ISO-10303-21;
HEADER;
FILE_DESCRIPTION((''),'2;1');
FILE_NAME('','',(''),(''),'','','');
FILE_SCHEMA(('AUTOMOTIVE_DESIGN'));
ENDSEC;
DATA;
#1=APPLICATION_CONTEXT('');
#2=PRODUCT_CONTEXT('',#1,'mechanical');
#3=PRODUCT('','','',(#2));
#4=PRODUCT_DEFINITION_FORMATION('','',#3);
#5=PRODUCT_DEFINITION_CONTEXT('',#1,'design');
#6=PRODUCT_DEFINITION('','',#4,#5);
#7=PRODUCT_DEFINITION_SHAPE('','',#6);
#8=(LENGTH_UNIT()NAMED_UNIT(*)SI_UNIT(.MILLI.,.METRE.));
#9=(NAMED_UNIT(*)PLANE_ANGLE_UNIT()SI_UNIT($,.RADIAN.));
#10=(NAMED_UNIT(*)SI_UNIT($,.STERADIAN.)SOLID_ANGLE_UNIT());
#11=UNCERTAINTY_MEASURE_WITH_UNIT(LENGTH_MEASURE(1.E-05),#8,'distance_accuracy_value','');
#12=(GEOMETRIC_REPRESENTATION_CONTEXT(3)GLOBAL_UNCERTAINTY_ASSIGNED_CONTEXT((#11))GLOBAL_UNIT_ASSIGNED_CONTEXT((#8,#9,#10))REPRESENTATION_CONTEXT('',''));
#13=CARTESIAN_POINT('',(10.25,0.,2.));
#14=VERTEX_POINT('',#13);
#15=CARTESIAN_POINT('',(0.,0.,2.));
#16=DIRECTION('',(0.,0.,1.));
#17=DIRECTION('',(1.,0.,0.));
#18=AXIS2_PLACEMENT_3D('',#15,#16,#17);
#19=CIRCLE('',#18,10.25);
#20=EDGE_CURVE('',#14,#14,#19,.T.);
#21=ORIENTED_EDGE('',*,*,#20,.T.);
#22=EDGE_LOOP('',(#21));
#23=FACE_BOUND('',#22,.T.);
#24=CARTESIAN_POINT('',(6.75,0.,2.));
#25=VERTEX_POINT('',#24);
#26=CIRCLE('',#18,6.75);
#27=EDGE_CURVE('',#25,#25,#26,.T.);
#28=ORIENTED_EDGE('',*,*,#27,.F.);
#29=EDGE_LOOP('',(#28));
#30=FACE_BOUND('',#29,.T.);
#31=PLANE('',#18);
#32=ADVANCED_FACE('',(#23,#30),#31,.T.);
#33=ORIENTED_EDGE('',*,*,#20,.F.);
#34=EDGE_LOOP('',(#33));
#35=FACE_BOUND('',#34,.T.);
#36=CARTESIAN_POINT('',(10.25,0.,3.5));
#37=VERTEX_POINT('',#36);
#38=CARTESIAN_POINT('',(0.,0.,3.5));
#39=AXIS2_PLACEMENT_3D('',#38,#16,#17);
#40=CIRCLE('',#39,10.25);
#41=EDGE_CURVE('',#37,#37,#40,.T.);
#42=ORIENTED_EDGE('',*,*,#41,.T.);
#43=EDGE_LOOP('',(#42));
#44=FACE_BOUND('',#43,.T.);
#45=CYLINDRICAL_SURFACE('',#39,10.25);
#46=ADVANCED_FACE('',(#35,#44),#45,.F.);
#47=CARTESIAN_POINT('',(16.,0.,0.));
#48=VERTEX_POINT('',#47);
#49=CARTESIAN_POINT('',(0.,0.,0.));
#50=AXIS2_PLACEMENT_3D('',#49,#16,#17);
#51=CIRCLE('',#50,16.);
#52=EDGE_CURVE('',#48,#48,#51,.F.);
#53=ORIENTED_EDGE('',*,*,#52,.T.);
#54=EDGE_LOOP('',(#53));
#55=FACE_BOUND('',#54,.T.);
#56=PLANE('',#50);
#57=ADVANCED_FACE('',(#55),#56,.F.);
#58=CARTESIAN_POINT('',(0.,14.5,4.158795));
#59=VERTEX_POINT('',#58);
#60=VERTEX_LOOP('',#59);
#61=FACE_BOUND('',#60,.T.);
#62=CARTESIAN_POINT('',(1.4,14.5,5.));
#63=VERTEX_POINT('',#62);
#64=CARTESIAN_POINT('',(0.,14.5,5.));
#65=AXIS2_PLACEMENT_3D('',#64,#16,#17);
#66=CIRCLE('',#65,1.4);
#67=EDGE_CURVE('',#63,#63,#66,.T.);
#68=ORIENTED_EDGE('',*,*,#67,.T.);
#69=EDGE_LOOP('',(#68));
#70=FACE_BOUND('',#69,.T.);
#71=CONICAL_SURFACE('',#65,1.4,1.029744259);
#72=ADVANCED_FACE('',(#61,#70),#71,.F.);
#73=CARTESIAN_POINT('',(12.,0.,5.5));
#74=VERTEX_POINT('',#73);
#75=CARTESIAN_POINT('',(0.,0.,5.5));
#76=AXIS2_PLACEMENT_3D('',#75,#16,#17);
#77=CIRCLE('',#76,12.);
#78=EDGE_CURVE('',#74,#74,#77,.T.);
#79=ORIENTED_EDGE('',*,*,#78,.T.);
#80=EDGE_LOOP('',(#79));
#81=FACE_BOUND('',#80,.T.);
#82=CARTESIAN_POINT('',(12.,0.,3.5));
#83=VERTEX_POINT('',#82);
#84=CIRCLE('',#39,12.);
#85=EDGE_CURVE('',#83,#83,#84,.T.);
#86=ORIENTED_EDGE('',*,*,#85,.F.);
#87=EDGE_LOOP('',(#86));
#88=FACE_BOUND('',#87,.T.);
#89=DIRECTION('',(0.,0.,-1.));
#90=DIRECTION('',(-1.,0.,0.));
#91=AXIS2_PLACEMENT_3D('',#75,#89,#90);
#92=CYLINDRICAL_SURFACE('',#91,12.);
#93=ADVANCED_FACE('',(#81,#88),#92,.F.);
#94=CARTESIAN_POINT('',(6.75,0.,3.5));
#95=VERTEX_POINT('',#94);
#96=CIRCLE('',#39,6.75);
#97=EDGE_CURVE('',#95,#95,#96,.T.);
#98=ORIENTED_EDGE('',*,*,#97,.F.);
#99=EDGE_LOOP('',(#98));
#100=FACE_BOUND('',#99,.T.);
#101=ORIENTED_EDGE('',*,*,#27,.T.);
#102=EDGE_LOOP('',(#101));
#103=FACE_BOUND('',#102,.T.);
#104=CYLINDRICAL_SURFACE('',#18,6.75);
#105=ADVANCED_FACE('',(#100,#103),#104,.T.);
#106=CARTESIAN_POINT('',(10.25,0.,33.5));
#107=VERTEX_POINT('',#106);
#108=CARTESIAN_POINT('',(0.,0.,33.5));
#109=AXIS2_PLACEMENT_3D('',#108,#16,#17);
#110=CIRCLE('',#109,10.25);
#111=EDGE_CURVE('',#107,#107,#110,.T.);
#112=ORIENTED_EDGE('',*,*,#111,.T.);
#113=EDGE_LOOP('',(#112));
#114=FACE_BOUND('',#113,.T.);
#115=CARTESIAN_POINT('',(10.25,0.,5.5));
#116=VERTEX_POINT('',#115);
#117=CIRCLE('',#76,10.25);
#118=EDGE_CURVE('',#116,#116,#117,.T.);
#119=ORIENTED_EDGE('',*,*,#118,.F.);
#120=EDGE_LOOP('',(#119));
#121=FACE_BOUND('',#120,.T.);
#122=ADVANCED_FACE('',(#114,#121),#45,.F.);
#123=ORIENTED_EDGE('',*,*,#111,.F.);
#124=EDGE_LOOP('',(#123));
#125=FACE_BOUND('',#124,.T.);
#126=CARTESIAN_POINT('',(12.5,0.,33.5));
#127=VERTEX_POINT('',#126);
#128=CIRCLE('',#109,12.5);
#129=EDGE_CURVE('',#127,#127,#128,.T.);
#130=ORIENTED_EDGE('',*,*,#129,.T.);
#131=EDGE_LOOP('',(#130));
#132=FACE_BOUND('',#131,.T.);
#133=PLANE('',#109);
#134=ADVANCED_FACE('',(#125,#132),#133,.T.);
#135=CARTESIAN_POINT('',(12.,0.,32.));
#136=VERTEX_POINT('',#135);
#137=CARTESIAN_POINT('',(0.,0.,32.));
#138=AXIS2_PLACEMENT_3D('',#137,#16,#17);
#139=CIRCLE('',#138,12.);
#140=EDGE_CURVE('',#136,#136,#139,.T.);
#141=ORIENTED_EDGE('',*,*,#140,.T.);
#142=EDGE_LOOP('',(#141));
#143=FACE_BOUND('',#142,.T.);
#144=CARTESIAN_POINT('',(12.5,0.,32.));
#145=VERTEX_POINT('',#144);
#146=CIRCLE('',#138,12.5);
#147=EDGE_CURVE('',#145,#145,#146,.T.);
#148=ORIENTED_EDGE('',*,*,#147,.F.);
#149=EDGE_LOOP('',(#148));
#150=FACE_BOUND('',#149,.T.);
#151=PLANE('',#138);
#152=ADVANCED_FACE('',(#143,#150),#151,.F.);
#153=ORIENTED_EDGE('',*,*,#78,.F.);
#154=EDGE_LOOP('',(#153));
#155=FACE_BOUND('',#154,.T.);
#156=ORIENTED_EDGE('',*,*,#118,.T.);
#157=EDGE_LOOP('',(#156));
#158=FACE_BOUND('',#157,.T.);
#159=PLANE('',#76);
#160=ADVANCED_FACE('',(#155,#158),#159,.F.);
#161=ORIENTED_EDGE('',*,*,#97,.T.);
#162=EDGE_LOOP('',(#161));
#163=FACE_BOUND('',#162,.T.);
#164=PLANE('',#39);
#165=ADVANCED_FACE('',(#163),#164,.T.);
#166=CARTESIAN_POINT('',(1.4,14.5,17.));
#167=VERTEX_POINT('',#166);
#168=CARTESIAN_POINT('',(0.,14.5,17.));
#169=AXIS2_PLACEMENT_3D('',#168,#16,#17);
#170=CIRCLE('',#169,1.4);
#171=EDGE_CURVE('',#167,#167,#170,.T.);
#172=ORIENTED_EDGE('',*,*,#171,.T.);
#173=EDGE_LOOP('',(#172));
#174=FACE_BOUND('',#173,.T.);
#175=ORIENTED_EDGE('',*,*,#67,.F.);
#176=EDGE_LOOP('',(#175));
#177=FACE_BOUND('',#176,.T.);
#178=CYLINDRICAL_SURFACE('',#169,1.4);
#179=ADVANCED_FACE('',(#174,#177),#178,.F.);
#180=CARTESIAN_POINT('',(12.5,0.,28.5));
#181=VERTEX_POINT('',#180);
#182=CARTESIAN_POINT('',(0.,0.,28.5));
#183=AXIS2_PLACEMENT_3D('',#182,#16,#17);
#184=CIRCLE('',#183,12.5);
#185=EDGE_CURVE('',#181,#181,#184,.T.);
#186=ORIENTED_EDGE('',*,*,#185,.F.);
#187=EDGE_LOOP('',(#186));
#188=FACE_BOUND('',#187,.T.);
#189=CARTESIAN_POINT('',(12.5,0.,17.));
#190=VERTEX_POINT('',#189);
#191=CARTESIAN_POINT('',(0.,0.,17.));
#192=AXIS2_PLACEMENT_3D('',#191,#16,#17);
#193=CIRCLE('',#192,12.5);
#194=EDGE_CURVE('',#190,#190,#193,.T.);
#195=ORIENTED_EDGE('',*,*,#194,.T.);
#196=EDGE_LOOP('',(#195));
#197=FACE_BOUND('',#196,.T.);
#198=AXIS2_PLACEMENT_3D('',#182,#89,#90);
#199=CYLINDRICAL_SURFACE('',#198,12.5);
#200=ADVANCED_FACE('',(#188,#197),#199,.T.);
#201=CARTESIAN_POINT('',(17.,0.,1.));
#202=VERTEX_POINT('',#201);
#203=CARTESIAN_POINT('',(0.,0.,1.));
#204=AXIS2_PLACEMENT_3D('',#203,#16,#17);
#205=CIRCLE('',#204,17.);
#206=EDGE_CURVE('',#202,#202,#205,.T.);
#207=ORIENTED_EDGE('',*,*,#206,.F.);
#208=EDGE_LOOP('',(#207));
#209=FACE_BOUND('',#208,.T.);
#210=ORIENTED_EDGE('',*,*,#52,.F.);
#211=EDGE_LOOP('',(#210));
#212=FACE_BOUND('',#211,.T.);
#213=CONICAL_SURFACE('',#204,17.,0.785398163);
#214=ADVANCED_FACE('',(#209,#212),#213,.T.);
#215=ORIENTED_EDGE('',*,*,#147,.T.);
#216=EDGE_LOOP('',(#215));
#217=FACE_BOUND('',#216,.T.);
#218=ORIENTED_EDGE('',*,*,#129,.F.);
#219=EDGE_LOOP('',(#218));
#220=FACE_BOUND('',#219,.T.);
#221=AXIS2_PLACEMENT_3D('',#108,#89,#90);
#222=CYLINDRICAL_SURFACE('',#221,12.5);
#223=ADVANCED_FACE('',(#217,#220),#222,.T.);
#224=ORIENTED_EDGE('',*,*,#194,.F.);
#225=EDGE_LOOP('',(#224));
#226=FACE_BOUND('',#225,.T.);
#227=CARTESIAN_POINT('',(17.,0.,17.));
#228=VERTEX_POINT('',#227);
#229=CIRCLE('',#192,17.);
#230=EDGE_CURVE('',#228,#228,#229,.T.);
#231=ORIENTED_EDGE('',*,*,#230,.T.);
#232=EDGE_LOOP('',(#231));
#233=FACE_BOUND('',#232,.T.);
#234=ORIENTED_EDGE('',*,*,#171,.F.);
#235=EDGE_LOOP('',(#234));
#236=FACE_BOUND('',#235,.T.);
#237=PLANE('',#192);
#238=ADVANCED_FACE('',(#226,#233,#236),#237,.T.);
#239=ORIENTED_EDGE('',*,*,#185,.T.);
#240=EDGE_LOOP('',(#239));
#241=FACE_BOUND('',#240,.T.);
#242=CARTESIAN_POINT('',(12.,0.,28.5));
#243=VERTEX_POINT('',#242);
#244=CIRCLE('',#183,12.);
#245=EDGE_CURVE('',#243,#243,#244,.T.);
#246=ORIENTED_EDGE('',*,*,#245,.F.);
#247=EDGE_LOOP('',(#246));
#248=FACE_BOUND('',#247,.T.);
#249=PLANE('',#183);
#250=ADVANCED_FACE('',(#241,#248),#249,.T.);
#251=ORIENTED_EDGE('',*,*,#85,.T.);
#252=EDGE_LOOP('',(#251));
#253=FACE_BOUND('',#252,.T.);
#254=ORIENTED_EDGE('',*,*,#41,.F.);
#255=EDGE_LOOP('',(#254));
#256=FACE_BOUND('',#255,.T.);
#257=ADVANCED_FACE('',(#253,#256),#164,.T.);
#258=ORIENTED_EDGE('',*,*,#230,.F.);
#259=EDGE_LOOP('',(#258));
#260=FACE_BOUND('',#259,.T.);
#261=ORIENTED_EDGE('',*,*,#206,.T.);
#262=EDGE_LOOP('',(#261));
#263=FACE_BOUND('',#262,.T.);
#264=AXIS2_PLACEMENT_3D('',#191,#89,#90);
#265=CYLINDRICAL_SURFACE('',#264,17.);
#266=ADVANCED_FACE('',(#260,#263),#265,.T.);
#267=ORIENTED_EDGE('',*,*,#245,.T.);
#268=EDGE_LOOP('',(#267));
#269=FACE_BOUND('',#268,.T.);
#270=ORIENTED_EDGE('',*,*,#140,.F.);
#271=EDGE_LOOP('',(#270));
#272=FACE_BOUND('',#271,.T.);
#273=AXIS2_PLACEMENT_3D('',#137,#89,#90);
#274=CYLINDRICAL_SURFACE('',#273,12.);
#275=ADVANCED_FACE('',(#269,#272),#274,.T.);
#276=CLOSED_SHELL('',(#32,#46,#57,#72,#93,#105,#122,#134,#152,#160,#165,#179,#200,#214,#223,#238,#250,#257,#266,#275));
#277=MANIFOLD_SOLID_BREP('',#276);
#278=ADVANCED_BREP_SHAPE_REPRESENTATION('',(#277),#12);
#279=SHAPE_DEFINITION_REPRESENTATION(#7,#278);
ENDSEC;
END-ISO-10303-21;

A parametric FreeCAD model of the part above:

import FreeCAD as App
import Part
import Sketcher
from FreeCAD import Vector
Q = App.Units.Quantity


def edges_at(feature, points):
    """Names of the edges that pass closest to the given points."""
    edges = feature.Shape.Edges
    near = lambda p: min(range(len(edges)), key=lambda i: edges[i].distToShape(Part.Vertex(*p))[0])
    return sorted({f"Edge{near(p) + 1}" for p in points})

doc = App.newDocument("Part")
body = doc.addObject("PartDesign::Body", "Body")

sketch1 = doc.addObject("Sketcher::SketchObject", "Sketch")
body.addObject(sketch1)
sketch1.AttachmentSupport = (doc.XY_Plane, [""])
sketch1.MapMode = "FlatFace"
sketch1.addGeometry(Part.Circle(Vector(0, 0, 0), Vector(0, 0, 1), 17), False)
sketch1.addConstraint([
    Sketcher.Constraint("Coincident", 0, 3, -1, 1),
    Sketcher.Constraint("Diameter", 0, Q("34 mm")),
])
pad1 = doc.addObject("PartDesign::Pad", "Pad")
body.addObject(pad1)
pad1.Profile = sketch1
pad1.Length = 17

sketch2 = doc.addObject("Sketcher::SketchObject", "Sketch001")
body.addObject(sketch2)
sketch2.AttachmentSupport = (doc.XY_Plane, [""])
sketch2.MapMode = "FlatFace"
sketch2.AttachmentOffset = App.Placement(Vector(0, 0, 17), App.Rotation())
sketch2.addGeometry(Part.Circle(Vector(0, 0, 0), Vector(0, 0, 1), 12.5), False)
sketch2.addConstraint([
    Sketcher.Constraint("Coincident", 0, 3, -1, 1),
    Sketcher.Constraint("Diameter", 0, Q("25 mm")),
])
pad2 = doc.addObject("PartDesign::Pad", "Pad001")
body.addObject(pad2)
pad2.Profile = sketch2
pad2.Length = 11.5

sketch3 = doc.addObject("Sketcher::SketchObject", "Sketch002")
body.addObject(sketch3)
sketch3.AttachmentSupport = (doc.XY_Plane, [""])
sketch3.MapMode = "FlatFace"
sketch3.AttachmentOffset = App.Placement(Vector(0, 0, 28.5), App.Rotation())
sketch3.addGeometry(Part.Circle(Vector(0, 0, 0), Vector(0, 0, 1), 12), False)
sketch3.addConstraint([
    Sketcher.Constraint("Coincident", 0, 3, -1, 1),
    Sketcher.Constraint("Diameter", 0, Q("24 mm")),
])
pad3 = doc.addObject("PartDesign::Pad", "Pad002")
body.addObject(pad3)
pad3.Profile = sketch3
pad3.Length = 3.5

sketch4 = doc.addObject("Sketcher::SketchObject", "Sketch003")
body.addObject(sketch4)
sketch4.AttachmentSupport = (doc.XY_Plane, [""])
sketch4.MapMode = "FlatFace"
sketch4.AttachmentOffset = App.Placement(Vector(0, 0, 32), App.Rotation())
sketch4.addGeometry(Part.Circle(Vector(0, 0, 0), Vector(0, 0, 1), 12.5), False)
sketch4.addConstraint([
    Sketcher.Constraint("Coincident", 0, 3, -1, 1),
    Sketcher.Constraint("Diameter", 0, Q("25 mm")),
])
pad4 = doc.addObject("PartDesign::Pad", "Pad003")
body.addObject(pad4)
pad4.Profile = sketch4
pad4.Length = 1.5

sketch5 = doc.addObject("Sketcher::SketchObject", "Sketch004")
body.addObject(sketch5)
sketch5.AttachmentSupport = (doc.XY_Plane, [""])
sketch5.MapMode = "FlatFace"
sketch5.AttachmentOffset = App.Placement(Vector(0, 0, 33.5), App.Rotation())
sketch5.addGeometry(Part.Circle(Vector(0, 0, 0), Vector(0, 0, 1), 10.25), False)
sketch5.addConstraint([
    Sketcher.Constraint("Coincident", 0, 3, -1, 1),
    Sketcher.Constraint("Diameter", 0, Q("20.5 mm")),
])
pocket1 = doc.addObject("PartDesign::Pocket", "Pocket")
body.addObject(pocket1)
pocket1.Profile = sketch5
pocket1.Length = 30

sketch6 = doc.addObject("Sketcher::SketchObject", "Sketch005")
body.addObject(sketch6)
sketch6.AttachmentSupport = (doc.XY_Plane, [""])
sketch6.MapMode = "FlatFace"
sketch6.AttachmentOffset = App.Placement(Vector(0, 0, 3.5), App.Rotation())
sketch6.addGeometry([
    Part.Circle(Vector(0, 0, 0), Vector(0, 0, 1), 10.25),
    Part.Circle(Vector(0, 0, 0), Vector(0, 0, 1), 6.75),
], False)
sketch6.addConstraint([
    Sketcher.Constraint("Coincident", 0, 3, -1, 1),
    Sketcher.Constraint("Coincident", 1, 3, -1, 1),
    Sketcher.Constraint("Diameter", 0, Q("20.5 mm")),
    Sketcher.Constraint("Diameter", 1, Q("13.5 mm")),
])
pocket2 = doc.addObject("PartDesign::Pocket", "Pocket001")
body.addObject(pocket2)
pocket2.Profile = sketch6
pocket2.Length = 1.5

sketch7 = doc.addObject("Sketcher::SketchObject", "Sketch006")
body.addObject(sketch7)
sketch7.AttachmentSupport = (doc.XY_Plane, [""])
sketch7.MapMode = "FlatFace"
sketch7.AttachmentOffset = App.Placement(Vector(0, 0, 3.5), App.Rotation())
sketch7.addGeometry([
    Part.Circle(Vector(0, 0, 0), Vector(0, 0, 1), 12),
    Part.Circle(Vector(0, 0, 0), Vector(0, 0, 1), 10.25),
], False)
sketch7.addConstraint([
    Sketcher.Constraint("Coincident", 0, 3, -1, 1),
    Sketcher.Constraint("Coincident", 1, 3, -1, 1),
    Sketcher.Constraint("Diameter", 0, Q("24 mm")),
    Sketcher.Constraint("Diameter", 1, Q("20.5 mm")),
])
pocket3 = doc.addObject("PartDesign::Pocket", "Pocket002")
body.addObject(pocket3)
pocket3.Profile = sketch7
pocket3.Length = 2
pocket3.Reversed = True

sketch8 = doc.addObject("Sketcher::SketchObject", "Sketch007")
body.addObject(sketch8)
sketch8.AttachmentSupport = (doc.XY_Plane, [""])
sketch8.MapMode = "FlatFace"
sketch8.AttachmentOffset = App.Placement(Vector(0, 0, 17), App.Rotation())
sketch8.addGeometry(Part.Circle(Vector(0, 14.5, 0), Vector(0, 0, 1), 1.4), False)
sketch8.addConstraint([
    Sketcher.Constraint("PointOnObject", 0, 3, -2),
    Sketcher.Constraint("Diameter", 0, Q("2.8 mm")),
    Sketcher.Constraint("DistanceY", -1, 1, 0, 3, Q("14.5 mm")),
])
doc.recompute()
hole = doc.addObject("PartDesign::Hole", "Hole")
body.addObject(hole)
hole.Profile = sketch8
hole.ThreadType = "None"
hole.Diameter = 2.8
hole.DepthType = "Dimension"
hole.Depth = 12
hole.DrillPoint = "Angled"
hole.DrillPointAngle = 118
doc.recompute()

chamfer = doc.addObject("PartDesign::Chamfer", "Chamfer")
body.addObject(chamfer)
chamfer.Base = (hole, edges_at(hole, [(-17, 0, 0)]))
chamfer.Size = 1

doc.recompute()
